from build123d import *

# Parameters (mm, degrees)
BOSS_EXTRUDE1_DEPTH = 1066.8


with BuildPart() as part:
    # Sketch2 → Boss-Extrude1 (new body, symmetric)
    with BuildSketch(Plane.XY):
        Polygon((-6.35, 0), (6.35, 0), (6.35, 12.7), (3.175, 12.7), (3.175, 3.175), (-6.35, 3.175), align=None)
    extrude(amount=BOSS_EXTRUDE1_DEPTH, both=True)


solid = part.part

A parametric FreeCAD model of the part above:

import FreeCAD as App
import Part
import Sketcher
Q = App.Units.Quantity


def add_polygon(sketch, points):
    """Adds a closed chain of lines whose ends are joined by coincident constraints."""
    first, n = sketch.GeometryCount, len(points)
    for a, b in zip(points, points[1:] + points[:1]):
        sketch.addGeometry(Part.LineSegment(App.Vector(*a, 0), App.Vector(*b, 0)), False)
    for i in range(n):
        sketch.addConstraint(Sketcher.Constraint("Coincident", first + i, 2, first + (i + 1) % n, 1))

doc = App.newDocument("Part")
body = doc.addObject("PartDesign::Body", "Body")

# Sketch on XY plane
sketch1 = body.newObject("Sketcher::SketchObject", "Sketch")
sketch1.AttachmentSupport = (doc.getObject("XY_Plane"), [""])
sketch1.MapMode = "FlatFace"
add_polygon(sketch1, [(-6.3, 0), (6.3, 0), (6.3, 12.7), (3.2, 12.7), (3.2, 3.2), (-6.3, 3.2)])  # lines 0-5
sketch1.addConstraint([
    Sketcher.Constraint("Horizontal", 0),
    Sketcher.Constraint("Vertical", 1),
    Sketcher.Constraint("Horizontal", 2),
    Sketcher.Constraint("Vertical", 3),
    Sketcher.Constraint("Horizontal", 4),
    Sketcher.Constraint("Vertical", 5),
    Sketcher.Constraint("Symmetric", 0, 2, 5, 2, -1, 1),
    Sketcher.Constraint("Equal", 0, 1),
    Sketcher.Constraint("Equal", 4, 3),
    Sketcher.Constraint("DistanceX", 0, 1, 0, 2, Q("0.5 in")),
    Sketcher.Constraint("DistanceX", 2, 2, 2, 1, Q("0.125 in")),
])
pad1 = body.newObject("PartDesign::Pad", "Pad")
pad1.Profile = sketch1
pad1.Length = Q("84 in")
pad1.Midplane = True

doc.recompute()
